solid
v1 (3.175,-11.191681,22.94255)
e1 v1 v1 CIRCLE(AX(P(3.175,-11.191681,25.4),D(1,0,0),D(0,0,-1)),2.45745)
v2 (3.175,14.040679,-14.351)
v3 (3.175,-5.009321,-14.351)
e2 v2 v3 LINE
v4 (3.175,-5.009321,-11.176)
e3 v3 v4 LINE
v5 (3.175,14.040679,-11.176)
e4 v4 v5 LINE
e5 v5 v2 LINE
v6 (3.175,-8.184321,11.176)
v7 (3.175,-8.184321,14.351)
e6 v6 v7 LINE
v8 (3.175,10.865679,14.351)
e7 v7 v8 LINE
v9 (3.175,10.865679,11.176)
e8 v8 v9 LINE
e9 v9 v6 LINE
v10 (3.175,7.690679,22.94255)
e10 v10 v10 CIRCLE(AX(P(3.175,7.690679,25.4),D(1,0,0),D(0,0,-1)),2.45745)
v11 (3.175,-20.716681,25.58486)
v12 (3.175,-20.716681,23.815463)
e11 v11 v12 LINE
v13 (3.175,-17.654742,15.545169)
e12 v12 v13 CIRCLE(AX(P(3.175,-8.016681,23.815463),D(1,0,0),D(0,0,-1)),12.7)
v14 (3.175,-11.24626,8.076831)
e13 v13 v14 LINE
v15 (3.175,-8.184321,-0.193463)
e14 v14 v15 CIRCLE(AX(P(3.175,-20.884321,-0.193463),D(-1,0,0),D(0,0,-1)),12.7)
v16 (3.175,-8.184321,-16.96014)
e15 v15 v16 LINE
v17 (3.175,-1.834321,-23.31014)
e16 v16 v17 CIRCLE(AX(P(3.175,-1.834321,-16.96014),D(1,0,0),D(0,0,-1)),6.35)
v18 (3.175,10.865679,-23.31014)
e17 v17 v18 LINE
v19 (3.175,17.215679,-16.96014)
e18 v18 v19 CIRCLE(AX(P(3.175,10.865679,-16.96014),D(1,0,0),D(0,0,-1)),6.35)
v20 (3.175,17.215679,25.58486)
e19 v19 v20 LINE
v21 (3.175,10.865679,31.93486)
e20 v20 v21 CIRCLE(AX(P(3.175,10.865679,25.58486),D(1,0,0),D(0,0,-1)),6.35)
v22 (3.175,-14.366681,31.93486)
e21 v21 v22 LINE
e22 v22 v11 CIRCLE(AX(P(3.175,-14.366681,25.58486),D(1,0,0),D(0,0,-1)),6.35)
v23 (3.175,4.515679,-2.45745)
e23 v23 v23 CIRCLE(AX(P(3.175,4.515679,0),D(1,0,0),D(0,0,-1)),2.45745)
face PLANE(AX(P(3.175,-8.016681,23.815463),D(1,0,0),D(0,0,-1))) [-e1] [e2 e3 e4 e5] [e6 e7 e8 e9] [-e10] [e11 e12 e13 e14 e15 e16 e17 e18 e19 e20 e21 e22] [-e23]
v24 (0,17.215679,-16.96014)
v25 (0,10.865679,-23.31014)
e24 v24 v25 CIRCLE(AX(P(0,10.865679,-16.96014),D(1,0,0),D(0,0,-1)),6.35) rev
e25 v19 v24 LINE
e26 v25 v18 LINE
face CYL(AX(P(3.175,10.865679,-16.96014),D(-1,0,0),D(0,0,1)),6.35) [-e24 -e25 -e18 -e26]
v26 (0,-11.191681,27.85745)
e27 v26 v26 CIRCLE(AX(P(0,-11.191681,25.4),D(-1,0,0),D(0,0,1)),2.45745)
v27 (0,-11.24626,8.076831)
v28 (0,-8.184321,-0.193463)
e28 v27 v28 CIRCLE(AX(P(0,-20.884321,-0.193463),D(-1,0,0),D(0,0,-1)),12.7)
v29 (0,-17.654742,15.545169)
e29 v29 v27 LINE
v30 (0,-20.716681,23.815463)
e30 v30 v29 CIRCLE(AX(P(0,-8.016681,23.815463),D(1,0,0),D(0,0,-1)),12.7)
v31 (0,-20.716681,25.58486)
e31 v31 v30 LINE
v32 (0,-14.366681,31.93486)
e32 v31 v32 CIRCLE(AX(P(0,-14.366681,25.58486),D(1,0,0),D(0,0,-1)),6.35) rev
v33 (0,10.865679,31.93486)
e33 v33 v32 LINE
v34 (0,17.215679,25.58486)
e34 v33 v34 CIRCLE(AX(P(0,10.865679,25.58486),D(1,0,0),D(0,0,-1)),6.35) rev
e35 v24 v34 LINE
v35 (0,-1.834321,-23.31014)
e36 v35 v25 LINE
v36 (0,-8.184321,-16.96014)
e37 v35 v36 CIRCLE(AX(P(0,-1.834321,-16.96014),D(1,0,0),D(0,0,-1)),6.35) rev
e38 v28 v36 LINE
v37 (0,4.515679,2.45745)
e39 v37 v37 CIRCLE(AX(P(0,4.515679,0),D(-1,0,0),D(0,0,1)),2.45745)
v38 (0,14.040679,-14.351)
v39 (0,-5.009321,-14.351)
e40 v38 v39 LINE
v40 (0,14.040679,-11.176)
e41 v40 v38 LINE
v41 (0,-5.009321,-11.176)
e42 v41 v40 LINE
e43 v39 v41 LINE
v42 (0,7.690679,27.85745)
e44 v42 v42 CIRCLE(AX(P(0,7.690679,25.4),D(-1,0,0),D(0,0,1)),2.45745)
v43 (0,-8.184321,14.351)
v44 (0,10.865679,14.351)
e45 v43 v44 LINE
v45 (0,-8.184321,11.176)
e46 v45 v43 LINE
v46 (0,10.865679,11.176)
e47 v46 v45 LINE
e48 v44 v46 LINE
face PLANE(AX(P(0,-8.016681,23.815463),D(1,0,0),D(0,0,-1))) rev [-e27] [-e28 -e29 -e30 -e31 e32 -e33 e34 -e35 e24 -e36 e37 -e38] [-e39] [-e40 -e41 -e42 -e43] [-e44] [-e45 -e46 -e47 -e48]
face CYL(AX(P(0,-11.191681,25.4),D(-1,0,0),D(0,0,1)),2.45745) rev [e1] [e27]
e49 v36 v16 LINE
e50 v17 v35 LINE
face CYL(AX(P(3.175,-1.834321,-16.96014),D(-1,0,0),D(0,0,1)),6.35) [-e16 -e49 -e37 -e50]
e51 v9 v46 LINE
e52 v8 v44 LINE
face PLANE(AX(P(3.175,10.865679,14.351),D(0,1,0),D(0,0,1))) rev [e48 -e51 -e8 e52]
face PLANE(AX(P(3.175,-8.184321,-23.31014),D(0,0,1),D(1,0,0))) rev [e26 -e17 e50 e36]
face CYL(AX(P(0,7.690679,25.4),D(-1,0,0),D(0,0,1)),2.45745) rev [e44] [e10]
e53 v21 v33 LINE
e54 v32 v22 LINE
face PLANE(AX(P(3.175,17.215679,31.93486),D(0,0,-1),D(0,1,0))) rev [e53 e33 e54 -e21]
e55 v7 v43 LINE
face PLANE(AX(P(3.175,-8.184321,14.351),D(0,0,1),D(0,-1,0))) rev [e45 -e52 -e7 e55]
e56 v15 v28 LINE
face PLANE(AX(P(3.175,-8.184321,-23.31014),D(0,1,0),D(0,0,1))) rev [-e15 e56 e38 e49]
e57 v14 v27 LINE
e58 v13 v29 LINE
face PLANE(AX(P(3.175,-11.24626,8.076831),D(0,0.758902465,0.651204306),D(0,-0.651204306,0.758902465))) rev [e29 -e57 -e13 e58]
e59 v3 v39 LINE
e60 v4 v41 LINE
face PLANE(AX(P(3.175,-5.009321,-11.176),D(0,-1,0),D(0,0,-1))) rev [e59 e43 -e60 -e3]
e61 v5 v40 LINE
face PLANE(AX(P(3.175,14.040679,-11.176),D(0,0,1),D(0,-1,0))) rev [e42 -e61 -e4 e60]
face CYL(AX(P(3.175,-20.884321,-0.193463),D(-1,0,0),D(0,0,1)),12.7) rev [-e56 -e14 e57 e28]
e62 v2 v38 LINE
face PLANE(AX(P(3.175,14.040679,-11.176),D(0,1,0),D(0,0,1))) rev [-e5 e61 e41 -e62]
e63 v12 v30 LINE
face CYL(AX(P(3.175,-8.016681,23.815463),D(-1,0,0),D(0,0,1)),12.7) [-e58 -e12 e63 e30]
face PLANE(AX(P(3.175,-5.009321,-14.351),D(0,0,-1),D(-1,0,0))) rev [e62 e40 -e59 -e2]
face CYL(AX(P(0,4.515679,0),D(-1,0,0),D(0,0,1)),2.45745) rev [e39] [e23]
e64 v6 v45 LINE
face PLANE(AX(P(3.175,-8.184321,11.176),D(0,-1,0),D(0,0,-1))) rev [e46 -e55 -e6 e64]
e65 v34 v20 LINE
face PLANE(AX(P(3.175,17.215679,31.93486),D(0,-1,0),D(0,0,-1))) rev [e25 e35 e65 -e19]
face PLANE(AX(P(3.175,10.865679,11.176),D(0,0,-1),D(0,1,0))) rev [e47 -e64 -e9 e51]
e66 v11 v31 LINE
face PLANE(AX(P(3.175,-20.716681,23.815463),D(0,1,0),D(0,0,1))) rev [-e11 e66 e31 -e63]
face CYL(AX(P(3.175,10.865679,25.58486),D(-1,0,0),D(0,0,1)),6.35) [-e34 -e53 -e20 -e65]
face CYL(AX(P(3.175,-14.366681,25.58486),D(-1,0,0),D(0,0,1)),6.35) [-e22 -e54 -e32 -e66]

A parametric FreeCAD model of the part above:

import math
import FreeCAD as App
import Part
import Sketcher
Q = App.Units.Quantity


def edges_at(feature, points):
    """Names of the edges that pass closest to the given points."""
    edges = feature.Shape.Edges
    near = lambda p: min(range(len(edges)), key=lambda i: edges[i].distToShape(Part.Vertex(*p))[0])
    return sorted({f"Edge{near(p) + 1}" for p in points})

doc = App.newDocument("Part")
body = doc.addObject("PartDesign::Body", "Body")

# Sketch on YZ plane
sketch1 = body.newObject("Sketcher::SketchObject", "Sketch")
sketch1.AttachmentSupport = (doc.getObject("YZ_Plane"), [""])
sketch1.MapMode = "FlatFace"
sketch1.addGeometry([
    Part.LineSegment(App.Vector(17.215679, -23.31014, 0), App.Vector(17.215679, 31.93486, 0)),  # 0
    Part.LineSegment(App.Vector(17.215679, 31.93486, 0), App.Vector(-20.716681, 31.93486, 0)),  # 1
    Part.LineSegment(App.Vector(-20.716681, 31.93486, 0), App.Vector(-20.716681, 23.815463, 0)),  # 2
    Part.ArcOfCircle(Part.Circle(App.Vector(-8.016681, 23.815463, 0), App.Vector(0, 0, 1), 12.7), math.radians(180), math.radians(220.632463)),  # 3
    Part.LineSegment(App.Vector(-17.654742, 15.545169, 0), App.Vector(-11.24626, 8.076831, 0)),  # 4
    Part.ArcOfCircle(Part.Circle(App.Vector(-20.884321, -0.193463, 0), App.Vector(0, 0, 1), 12.7), math.radians(0), math.radians(40.632463)),  # 5
    Part.LineSegment(App.Vector(-8.184321, -0.193463, 0), App.Vector(-8.184321, -23.31014, 0)),  # 6
    Part.LineSegment(App.Vector(-8.184321, -23.31014, 0), App.Vector(17.215679, -23.31014, 0)),  # 7
], False)
sketch1.addConstraint([
    Sketcher.Constraint("Coincident", 0, 2, 1, 1),
    Sketcher.Constraint("Coincident", 1, 2, 2, 1),
    Sketcher.Constraint("Tangent", 2, 2, 3, 1),
    Sketcher.Constraint("Tangent", 3, 2, 4, 1),
    Sketcher.Constraint("Tangent", 4, 2, 5, 2),
    Sketcher.Constraint("Tangent", 5, 1, 6, 1),
    Sketcher.Constraint("Coincident", 6, 2, 7, 1),
    Sketcher.Constraint("Coincident", 7, 2, 0, 1),
    Sketcher.Constraint("Vertical", 0),
    Sketcher.Constraint("Horizontal", 1),
    Sketcher.Constraint("Vertical", 2),
    Sketcher.Constraint("Vertical", 6),
    Sketcher.Constraint("Horizontal", 7),
    Sketcher.Constraint("Equal", 3, 5),
    Sketcher.Constraint("Radius", 3, Q("0.5 in")),
    Sketcher.Constraint("DistanceX", 7, 1, 7, 2, Q("1 in")),
    Sketcher.Constraint("DistanceY", 0, 1, 0, 2, Q("2.175 in")),
    Sketcher.Constraint("DistanceX", 1, 2, 1, 1, Q("1.4934 in")),
    Sketcher.Constraint("Distance", 4, Q("9.840971 mm")),
    Sketcher.Constraint("DistanceY", 2, 2, 2, 1, Q("8.119397 mm")),
    Sketcher.Constraint("DistanceX", 3, 3, -1, 1, Q("8.016681 mm")),
    Sketcher.Constraint("DistanceY", -1, 1, 0, 2, Q("31.93486 mm")),
])
pad1 = body.newObject("PartDesign::Pad", "Pad")
pad1.Profile = sketch1
pad1.Length = Q("0.125 in")

# Sketch on YZ plane
sketch2 = body.newObject("Sketcher::SketchObject", "Sketch001")
sketch2.AttachmentSupport = (doc.getObject("YZ_Plane"), [""])
sketch2.MapMode = "FlatFace"
sketch2.addGeometry([
    Part.LineSegment(App.Vector(14.040679, -14.351, 0), App.Vector(-5.009321, -14.351, 0)),  # 0
    Part.LineSegment(App.Vector(-5.009321, -14.351, 0), App.Vector(-5.009321, -11.176, 0)),  # 1
    Part.LineSegment(App.Vector(-5.009321, -11.176, 0), App.Vector(14.040679, -11.176, 0)),  # 2
    Part.LineSegment(App.Vector(14.040679, -11.176, 0), App.Vector(14.040679, -14.351, 0)),  # 3
    Part.LineSegment(App.Vector(10.865679, 11.176, 0), App.Vector(-8.184321, 11.176, 0)),  # 4
    Part.LineSegment(App.Vector(-8.184321, 11.176, 0), App.Vector(-8.184321, 14.351, 0)),  # 5
    Part.LineSegment(App.Vector(-8.184321, 14.351, 0), App.Vector(10.865679, 14.351, 0)),  # 6
    Part.LineSegment(App.Vector(10.865679, 14.351, 0), App.Vector(10.865679, 11.176, 0)),  # 7
], False)
sketch2.addConstraint([
    Sketcher.Constraint("Coincident", 0, 2, 1, 1),
    Sketcher.Constraint("Coincident", 1, 2, 2, 1),
    Sketcher.Constraint("Coincident", 2, 2, 3, 1),
    Sketcher.Constraint("Coincident", 3, 2, 0, 1),
    Sketcher.Constraint("Coincident", 4, 2, 5, 1),
    Sketcher.Constraint("Coincident", 5, 2, 6, 1),
    Sketcher.Constraint("Coincident", 6, 2, 7, 1),
    Sketcher.Constraint("Coincident", 7, 2, 4, 1),
    Sketcher.Constraint("Horizontal", 0),
    Sketcher.Constraint("Vertical", 1),
    Sketcher.Constraint("Horizontal", 2),
    Sketcher.Constraint("Vertical", 3),
    Sketcher.Constraint("Horizontal", 4),
    Sketcher.Constraint("Vertical", 5),
    Sketcher.Constraint("Horizontal", 6),
    Sketcher.Constraint("Vertical", 7),
    Sketcher.Constraint("Equal", 2, 4),
    Sketcher.Constraint("Equal", 3, 5),
    Sketcher.Constraint("DistanceX", 0, 2, 0, 1, Q("0.75 in")),
    Sketcher.Constraint("DistanceY", 1, 1, 1, 2, Q("0.125 in")),
    Sketcher.Constraint("DistanceY", 1, 2, -1, 1, Q("0.44 in")),
    Sketcher.Constraint("DistanceY", -1, 1, 4, 2, Q("0.44 in")),
    Sketcher.Constraint("DistanceX", 4, 2, 1, 2, Q("0.125 in")),
    Sketcher.Constraint("DistanceX", 0, 2, -1, 1, Q("5.009321 mm")),
])
pocket1 = body.newObject("PartDesign::Pocket", "Pocket")
pocket1.Profile = sketch2
pocket1.Length = Q("0.125 in")
pocket1.Reversed = True

# Sketch on YZ plane
sketch3 = body.newObject("Sketcher::SketchObject", "Sketch002")
sketch3.AttachmentSupport = (doc.getObject("YZ_Plane"), [""])
sketch3.MapMode = "FlatFace"
sketch3.addGeometry([
    Part.Circle(App.Vector(7.690679, 25.4, 0), App.Vector(0, 0, 1), 2.45745),
    Part.Circle(App.Vector(-11.191681, 25.4, 0), App.Vector(0, 0, 1), 2.45745),
    Part.Circle(App.Vector(4.515679, 0, 0), App.Vector(0, 0, 1), 2.45745),
], False)
sketch3.addConstraint([
    Sketcher.Constraint("Equal", 0, 1),
    Sketcher.Constraint("Equal", 1, 2),
    Sketcher.Constraint("PointOnObject", 2, 3, -1),
    Sketcher.Constraint("Horizontal", 0, 3, 1, 3),
    Sketcher.Constraint("DistanceY", -1, 1, 0, 3, Q("1 in")),
    Sketcher.Constraint("Diameter", 0, Q("0.1935 in")),
    Sketcher.Constraint("DistanceX", 2, 3, 0, 3, Q("0.125 in")),
    Sketcher.Constraint("DistanceX", 1, 3, 0, 3, Q("0.7434 in")),
    Sketcher.Constraint("DistanceX", -1, 1, 0, 3, Q("7.690679 mm")),
])
doc.recompute()
hole = body.newObject("PartDesign::Hole", "Hole")
hole.Profile = sketch3
hole.ThreadType = "None"
hole.Diameter = Q("0.1935 in")
hole.DepthType = "Dimension"
hole.Depth = 9.699415
hole.DrillPoint = "Angled"
hole.DrillPointAngle = 118
hole.Reversed = True
doc.recompute()

fillet = body.newObject("PartDesign::Fillet", "Fillet")
fillet.Base = (hole, edges_at(hole, [
    (1.587, 17.216, 31.935),
    (1.587, 17.216, -23.31),
    (1.587, -8.184, -23.31),
    (1.587, -20.717, 31.935),
]))
fillet.Radius = Q("0.25 in")

doc.recompute()
